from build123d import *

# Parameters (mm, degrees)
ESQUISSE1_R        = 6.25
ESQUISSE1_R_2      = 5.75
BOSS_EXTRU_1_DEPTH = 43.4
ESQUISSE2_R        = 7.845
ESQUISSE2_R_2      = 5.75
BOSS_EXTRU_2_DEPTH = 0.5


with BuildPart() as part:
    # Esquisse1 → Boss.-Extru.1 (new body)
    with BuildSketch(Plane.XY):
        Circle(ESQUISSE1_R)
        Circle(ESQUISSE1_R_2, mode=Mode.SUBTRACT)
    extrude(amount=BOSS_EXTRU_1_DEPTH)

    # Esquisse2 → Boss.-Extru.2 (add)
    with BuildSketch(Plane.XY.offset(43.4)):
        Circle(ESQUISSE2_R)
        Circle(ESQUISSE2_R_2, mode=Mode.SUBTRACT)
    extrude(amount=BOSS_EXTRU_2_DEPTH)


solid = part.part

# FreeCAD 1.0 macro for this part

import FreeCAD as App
import Part
import Sketcher
Q = App.Units.Quantity

doc = App.newDocument("Part")
body = doc.addObject("PartDesign::Body", "Body")

sketch1 = doc.addObject("Sketcher::SketchObject", "Sketch")
body.addObject(sketch1)
sketch1.AttachmentSupport = (doc.XY_Plane, [""])
sketch1.MapMode = "FlatFace"
sketch1.addGeometry([
    Part.Circle(App.Vector(0, 0, 0), App.Vector(0, 0, 1), 6),
    Part.Circle(App.Vector(0, 0, 0), App.Vector(0, 0, 1), 6),
], False)
sketch1.addConstraint([
    Sketcher.Constraint("Coincident", 0, 3, -1, 1),
    Sketcher.Constraint("Coincident", 1, 3, -1, 1),
    Sketcher.Constraint("Diameter", 0, Q("12.5 mm")),
    Sketcher.Constraint("Diameter", 1, Q("11.5 mm")),
])
pad1 = doc.addObject("PartDesign::Pad", "Pad")
body.addObject(pad1)
pad1.Profile = sketch1
pad1.Length = 43.4

sketch2 = doc.addObject("Sketcher::SketchObject", "Sketch001")
body.addObject(sketch2)
sketch2.AttachmentSupport = (doc.XY_Plane, [""])
sketch2.MapMode = "FlatFace"
sketch2.AttachmentOffset = App.Placement(App.Vector(0, 0, 43.4), App.Rotation())
sketch2.addGeometry([
    Part.Circle(App.Vector(0, 0, 0), App.Vector(0, 0, 1), 8),
    Part.Circle(App.Vector(0, 0, 0), App.Vector(0, 0, 1), 6),
], False)
sketch2.addConstraint([
    Sketcher.Constraint("Coincident", 0, 3, -1, 1),
    Sketcher.Constraint("Coincident", 1, 3, -1, 1),
    Sketcher.Constraint("Diameter", 1, Q("11.5 mm")),
    Sketcher.Constraint("Diameter", 0, Q("15.69 mm")),
])
pad2 = doc.addObject("PartDesign::Pad", "Pad001")
body.addObject(pad2)
pad2.Profile = sketch2
pad2.Length = 0.5

doc.recompute()
